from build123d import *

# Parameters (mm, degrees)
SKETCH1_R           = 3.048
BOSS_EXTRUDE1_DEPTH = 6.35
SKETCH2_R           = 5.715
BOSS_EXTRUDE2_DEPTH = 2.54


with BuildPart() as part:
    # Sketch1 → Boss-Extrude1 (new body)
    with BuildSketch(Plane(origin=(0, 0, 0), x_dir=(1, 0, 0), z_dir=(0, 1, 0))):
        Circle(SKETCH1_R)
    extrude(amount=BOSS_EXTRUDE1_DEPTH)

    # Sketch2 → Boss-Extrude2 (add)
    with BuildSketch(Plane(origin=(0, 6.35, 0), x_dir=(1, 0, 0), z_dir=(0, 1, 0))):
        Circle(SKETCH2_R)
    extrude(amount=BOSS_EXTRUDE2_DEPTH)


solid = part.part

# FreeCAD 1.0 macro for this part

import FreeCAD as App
import Part
import Sketcher

V = App.Vector
Q = App.Units.Quantity

doc = App.newDocument("Part")
body = doc.addObject("PartDesign::Body", "Body")

# Sketch on XZ plane
sketch1 = body.newObject("Sketcher::SketchObject", "Sketch")
sketch1.AttachmentSupport = (doc.getObject("XZ_Plane"), [""])
sketch1.MapMode = "FlatFace"
sketch1.addGeometry(Part.Circle(V(0, 0, 0), V(0, 0, 1), 3), False)
sketch1.addConstraint(Sketcher.Constraint("Coincident", 0, 3, -1, 1))
sketch1.addConstraint(Sketcher.Constraint("Diameter", 0, Q("0.24 in")))
pad1 = body.newObject("PartDesign::Pad", "Pad")
pad1.Profile = sketch1
pad1.Length = Q("0.25 in")
pad1.Reversed = True

# Sketch on XZ plane
sketch2 = body.newObject("Sketcher::SketchObject", "Sketch001")
sketch2.AttachmentSupport = (doc.getObject("XZ_Plane"), [""])
sketch2.MapMode = "FlatFace"
sketch2.AttachmentOffset = App.Placement(V(0, 0, -0.25 * 25.4), App.Rotation())
sketch2.addGeometry(Part.Circle(V(0, 0, 0), V(0, 0, 1), 6), False)
sketch2.addConstraint(Sketcher.Constraint("Coincident", 0, 3, -1, 1))
sketch2.addConstraint(Sketcher.Constraint("Diameter", 0, Q("0.45 in")))
pad2 = body.newObject("PartDesign::Pad", "Pad001")
pad2.Profile = sketch2
pad2.Length = Q("0.1 in")
pad2.Reversed = True

doc.recompute()
